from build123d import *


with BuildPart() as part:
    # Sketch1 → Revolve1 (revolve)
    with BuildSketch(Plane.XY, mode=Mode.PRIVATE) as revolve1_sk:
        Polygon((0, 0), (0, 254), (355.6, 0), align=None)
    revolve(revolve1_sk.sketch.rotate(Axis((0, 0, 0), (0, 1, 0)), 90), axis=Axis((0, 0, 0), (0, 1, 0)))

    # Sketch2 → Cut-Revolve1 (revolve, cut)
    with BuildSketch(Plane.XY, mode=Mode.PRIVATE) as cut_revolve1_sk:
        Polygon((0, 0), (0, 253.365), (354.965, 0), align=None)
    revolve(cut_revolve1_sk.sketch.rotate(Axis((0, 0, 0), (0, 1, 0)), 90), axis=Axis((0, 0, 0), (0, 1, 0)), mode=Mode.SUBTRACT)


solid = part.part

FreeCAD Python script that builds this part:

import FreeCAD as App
import Part
import Sketcher
from FreeCAD import Vector
Q = App.Units.Quantity


def add_polygon(sketch, points):
    """Adds a closed chain of lines whose ends are joined by coincident constraints."""
    first, n = sketch.GeometryCount, len(points)
    for a, b in zip(points, points[1:] + points[:1]):
        sketch.addGeometry(Part.LineSegment(App.Vector(*a, 0), App.Vector(*b, 0)), False)
    for i in range(n):
        sketch.addConstraint(Sketcher.Constraint("Coincident", first + i, 2, first + (i + 1) % n, 1))

doc = App.newDocument("Part")
body = doc.addObject("PartDesign::Body", "Body")

sketch1 = doc.addObject("Sketcher::SketchObject", "Sketch")
body.addObject(sketch1)
sketch1.AttachmentSupport = (doc.XY_Plane, [""])
sketch1.MapMode = "FlatFace"
add_polygon(sketch1, [(0, 254), (0, 0), (356, 0)])
sketch1.addConstraint(Sketcher.Constraint("Vertical", 0))
sketch1.addConstraint(Sketcher.Constraint("Horizontal", 1))
sketch1.addConstraint(Sketcher.Constraint("Coincident", 0, 2, -1, 1))
sketch1.addConstraint(Sketcher.Constraint("DistanceX", 1, 1, 1, 2, Q("14 in")))
sketch1.addConstraint(Sketcher.Constraint("DistanceY", 0, 2, 0, 1, Q("10 in")))
revolution = doc.addObject("PartDesign::Revolution", "Revolution")
body.addObject(revolution)
revolution.Profile = sketch1
revolution.ReferenceAxis = (sketch1, ["V_Axis"])
revolution.Angle = 360

sketch2 = doc.addObject("Sketcher::SketchObject", "Sketch001")
body.addObject(sketch2)
sketch2.AttachmentSupport = (doc.XY_Plane, [""])
sketch2.MapMode = "FlatFace"
add_polygon(sketch2, [(0, 253), (0, 0), (355, 0)])
sketch2.addConstraint(Sketcher.Constraint("Vertical", 0))
sketch2.addConstraint(Sketcher.Constraint("Horizontal", 1))
sketch2.addConstraint(Sketcher.Constraint("Coincident", 0, 2, -1, 1))
sketch2.addConstraint(Sketcher.Constraint("DistanceX", 1, 1, 1, 2, Q("13.975 in")))
sketch2.addConstraint(Sketcher.Constraint("DistanceY", 0, 2, 0, 1, Q("9.975 in")))
groove = doc.addObject("PartDesign::Groove", "Groove")
body.addObject(groove)
groove.Profile = sketch2
groove.ReferenceAxis = (sketch2, ["V_Axis"])
groove.Angle = 360

doc.recompute()
